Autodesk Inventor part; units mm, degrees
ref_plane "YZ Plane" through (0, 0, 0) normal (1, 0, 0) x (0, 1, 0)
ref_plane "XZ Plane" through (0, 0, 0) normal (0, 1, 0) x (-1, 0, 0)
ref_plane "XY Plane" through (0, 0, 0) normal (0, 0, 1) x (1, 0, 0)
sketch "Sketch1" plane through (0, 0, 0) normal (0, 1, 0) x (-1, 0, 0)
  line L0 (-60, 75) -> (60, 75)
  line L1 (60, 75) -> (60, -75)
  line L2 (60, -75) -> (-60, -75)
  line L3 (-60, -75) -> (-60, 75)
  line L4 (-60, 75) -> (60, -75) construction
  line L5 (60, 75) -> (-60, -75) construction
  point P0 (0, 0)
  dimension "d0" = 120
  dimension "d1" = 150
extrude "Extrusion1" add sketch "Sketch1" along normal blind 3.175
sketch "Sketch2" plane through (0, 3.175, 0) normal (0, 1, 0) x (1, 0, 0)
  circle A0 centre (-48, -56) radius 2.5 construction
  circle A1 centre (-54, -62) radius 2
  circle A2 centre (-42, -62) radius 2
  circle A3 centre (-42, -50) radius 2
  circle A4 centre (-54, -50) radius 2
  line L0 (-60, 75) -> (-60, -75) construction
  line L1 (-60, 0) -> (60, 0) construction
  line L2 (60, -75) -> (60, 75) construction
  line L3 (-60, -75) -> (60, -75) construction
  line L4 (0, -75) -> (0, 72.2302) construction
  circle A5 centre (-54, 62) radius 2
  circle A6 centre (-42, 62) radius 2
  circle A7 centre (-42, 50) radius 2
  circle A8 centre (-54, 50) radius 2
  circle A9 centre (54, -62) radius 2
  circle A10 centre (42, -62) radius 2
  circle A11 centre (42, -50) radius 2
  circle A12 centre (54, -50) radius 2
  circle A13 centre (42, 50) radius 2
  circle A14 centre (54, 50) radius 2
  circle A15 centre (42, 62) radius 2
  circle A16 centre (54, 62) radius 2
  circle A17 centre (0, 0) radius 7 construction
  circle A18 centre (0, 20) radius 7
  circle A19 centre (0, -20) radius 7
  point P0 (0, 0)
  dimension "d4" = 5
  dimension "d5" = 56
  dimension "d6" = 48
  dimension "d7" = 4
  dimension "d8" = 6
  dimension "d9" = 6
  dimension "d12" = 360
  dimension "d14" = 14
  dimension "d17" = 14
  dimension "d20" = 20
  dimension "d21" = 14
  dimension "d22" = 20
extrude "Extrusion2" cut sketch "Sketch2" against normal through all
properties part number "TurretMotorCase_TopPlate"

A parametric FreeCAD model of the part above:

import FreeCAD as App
import Part
import Sketcher
Q = App.Units.Quantity


def add_polygon(sketch, points):
    """Adds a closed chain of lines whose ends are joined by coincident constraints."""
    first, n = sketch.GeometryCount, len(points)
    for a, b in zip(points, points[1:] + points[:1]):
        sketch.addGeometry(Part.LineSegment(App.Vector(*a, 0), App.Vector(*b, 0)), False)
    for i in range(n):
        sketch.addConstraint(Sketcher.Constraint("Coincident", first + i, 2, first + (i + 1) % n, 1))

doc = App.newDocument("Part")
body = doc.addObject("PartDesign::Body", "Body")

# Sketch on XZ plane
sketch1 = body.newObject("Sketcher::SketchObject", "Sketch")
sketch1.AttachmentSupport = (doc.getObject("XZ_Plane"), [""])
sketch1.MapMode = "FlatFace"
add_polygon(sketch1, [(-60, 75), (60, 75), (60, -75), (-60, -75)])  # lines 0-3
sketch1.addConstraint(Sketcher.Constraint("Horizontal", 0))
sketch1.addConstraint(Sketcher.Constraint("Vertical", 1))
sketch1.addConstraint(Sketcher.Constraint("Horizontal", 2))
sketch1.addConstraint(Sketcher.Constraint("Vertical", 3))
sketch1.addConstraint(Sketcher.Constraint("Symmetric", 0, 2, 2, 2, -1, 1))
sketch1.addConstraint(Sketcher.Constraint("DistanceX", 0, 1, 0, 2, Q("120 mm")))
sketch1.addConstraint(Sketcher.Constraint("DistanceY", 1, 2, 1, 1, Q("150 mm")))
pad1 = body.newObject("PartDesign::Pad", "Pad")
pad1.Profile = sketch1
pad1.Length = 3.175
pad1.Reversed = True

# Sketch on XZ plane
sketch2 = body.newObject("Sketcher::SketchObject", "Sketch001")
sketch2.AttachmentSupport = (doc.getObject("XZ_Plane"), [""])
sketch2.MapMode = "FlatFace"
sketch2.AttachmentOffset = App.Placement(App.Vector(0, 0, -3.175), App.Rotation())
sketch2.addGeometry(Part.Circle(App.Vector(-54, 62, 0), App.Vector(0, 0, 1), 2), False)
sketch2.addGeometry(Part.Circle(App.Vector(-42, 62, 0), App.Vector(0, 0, 1), 2), False)
sketch2.addGeometry(Part.Circle(App.Vector(-42, 50, 0), App.Vector(0, 0, 1), 2), False)
sketch2.addGeometry(Part.Circle(App.Vector(-54, 50, 0), App.Vector(0, 0, 1), 2), False)
sketch2.addGeometry(Part.Circle(App.Vector(-54, -62, 0), App.Vector(0, 0, 1), 2), False)
sketch2.addGeometry(Part.Circle(App.Vector(-42, -62, 0), App.Vector(0, 0, 1), 2), False)
sketch2.addGeometry(Part.Circle(App.Vector(-42, -50, 0), App.Vector(0, 0, 1), 2), False)
sketch2.addGeometry(Part.Circle(App.Vector(-54, -50, 0), App.Vector(0, 0, 1), 2), False)
sketch2.addGeometry(Part.Circle(App.Vector(54, 62, 0), App.Vector(0, 0, 1), 2), False)
sketch2.addGeometry(Part.Circle(App.Vector(42, 62, 0), App.Vector(0, 0, 1), 2), False)
sketch2.addGeometry(Part.Circle(App.Vector(42, 50, 0), App.Vector(0, 0, 1), 2), False)
sketch2.addGeometry(Part.Circle(App.Vector(54, 50, 0), App.Vector(0, 0, 1), 2), False)
sketch2.addGeometry(Part.Circle(App.Vector(42, -50, 0), App.Vector(0, 0, 1), 2), False)
sketch2.addGeometry(Part.Circle(App.Vector(54, -50, 0), App.Vector(0, 0, 1), 2), False)
sketch2.addGeometry(Part.Circle(App.Vector(42, -62, 0), App.Vector(0, 0, 1), 2), False)
sketch2.addGeometry(Part.Circle(App.Vector(54, -62, 0), App.Vector(0, 0, 1), 2), False)
sketch2.addGeometry(Part.Circle(App.Vector(0, -20, 0), App.Vector(0, 0, 1), 7), False)
sketch2.addGeometry(Part.Circle(App.Vector(0, 20, 0), App.Vector(0, 0, 1), 7), False)
sketch2.addConstraint(Sketcher.Constraint("Equal", 0, 1))
sketch2.addConstraint(Sketcher.Constraint("Equal", 1, 2))
sketch2.addConstraint(Sketcher.Constraint("Equal", 2, 3))
sketch2.addConstraint(Sketcher.Constraint("Equal", 3, 4))
sketch2.addConstraint(Sketcher.Constraint("Equal", 4, 5))
sketch2.addConstraint(Sketcher.Constraint("Equal", 5, 6))
sketch2.addConstraint(Sketcher.Constraint("Equal", 6, 7))
sketch2.addConstraint(Sketcher.Constraint("Equal", 7, 8))
sketch2.addConstraint(Sketcher.Constraint("Equal", 8, 9))
sketch2.addConstraint(Sketcher.Constraint("Equal", 9, 10))
sketch2.addConstraint(Sketcher.Constraint("Equal", 10, 11))
sketch2.addConstraint(Sketcher.Constraint("Equal", 11, 12))
sketch2.addConstraint(Sketcher.Constraint("Equal", 12, 13))
sketch2.addConstraint(Sketcher.Constraint("Equal", 13, 14))
sketch2.addConstraint(Sketcher.Constraint("Equal", 14, 15))
sketch2.addConstraint(Sketcher.Constraint("Equal", 16, 17))
sketch2.addConstraint(Sketcher.Constraint("Symmetric", 4, 3, 8, 3, -1, 1))
sketch2.addConstraint(Sketcher.Constraint("Symmetric", 5, 3, 9, 3, -1, 1))
sketch2.addConstraint(Sketcher.Constraint("Symmetric", 6, 3, 10, 3, -1, 1))
sketch2.addConstraint(Sketcher.Constraint("Symmetric", 7, 3, 11, 3, -1, 1))
sketch2.addConstraint(Sketcher.Constraint("Symmetric", 2, 3, 12, 3, -1, 1))
sketch2.addConstraint(Sketcher.Constraint("Symmetric", 3, 3, 13, 3, -1, 1))
sketch2.addConstraint(Sketcher.Constraint("Symmetric", 1, 3, 14, 3, -1, 1))
sketch2.addConstraint(Sketcher.Constraint("Symmetric", 0, 3, 15, 3, -1, 1))
sketch2.addConstraint(Sketcher.Constraint("Symmetric", 16, 3, 17, 3, -1, 1))
sketch2.addConstraint(Sketcher.Constraint("Symmetric", 0, 3, 8, 3, -2))
sketch2.addConstraint(Sketcher.Constraint("Symmetric", 1, 3, 9, 3, -2))
sketch2.addConstraint(Sketcher.Constraint("Symmetric", 2, 3, 10, 3, -2))
sketch2.addConstraint(Sketcher.Constraint("Symmetric", 3, 3, 11, 3, -2))
sketch2.addConstraint(Sketcher.Constraint("PointOnObject", 16, 3, -2))
sketch2.addConstraint(Sketcher.Constraint("Horizontal", 0, 3, 1, 3))
sketch2.addConstraint(Sketcher.Constraint("Horizontal", 2, 3, 3, 3))
sketch2.addConstraint(Sketcher.Constraint("Vertical", 1, 3, 2, 3))
sketch2.addConstraint(Sketcher.Constraint("Vertical", 0, 3, 3, 3))
sketch2.addConstraint(Sketcher.Constraint("Diameter", 0, Q("4 mm")))
sketch2.addConstraint(Sketcher.Constraint("Diameter", 16, Q("14 mm")))
sketch2.addConstraint(Sketcher.Constraint("DistanceY", 16, 3, -1, 1, Q("20 mm")))
sketch2.addConstraint(Sketcher.Constraint("DistanceX", 0, 3, -1, 1, Q("54 mm")))
sketch2.addConstraint(Sketcher.Constraint("DistanceY", -1, 1, 0, 3, Q("62 mm")))
sketch2.addConstraint(Sketcher.Constraint("DistanceX", 1, 3, -1, 1, Q("42 mm")))
sketch2.addConstraint(Sketcher.Constraint("DistanceY", -1, 1, 2, 3, Q("50 mm")))
pocket1 = body.newObject("PartDesign::Pocket", "Pocket")
pocket1.Profile = sketch2
pocket1.Type = "ThroughAll"
pocket1.Reversed = True

doc.recompute()
